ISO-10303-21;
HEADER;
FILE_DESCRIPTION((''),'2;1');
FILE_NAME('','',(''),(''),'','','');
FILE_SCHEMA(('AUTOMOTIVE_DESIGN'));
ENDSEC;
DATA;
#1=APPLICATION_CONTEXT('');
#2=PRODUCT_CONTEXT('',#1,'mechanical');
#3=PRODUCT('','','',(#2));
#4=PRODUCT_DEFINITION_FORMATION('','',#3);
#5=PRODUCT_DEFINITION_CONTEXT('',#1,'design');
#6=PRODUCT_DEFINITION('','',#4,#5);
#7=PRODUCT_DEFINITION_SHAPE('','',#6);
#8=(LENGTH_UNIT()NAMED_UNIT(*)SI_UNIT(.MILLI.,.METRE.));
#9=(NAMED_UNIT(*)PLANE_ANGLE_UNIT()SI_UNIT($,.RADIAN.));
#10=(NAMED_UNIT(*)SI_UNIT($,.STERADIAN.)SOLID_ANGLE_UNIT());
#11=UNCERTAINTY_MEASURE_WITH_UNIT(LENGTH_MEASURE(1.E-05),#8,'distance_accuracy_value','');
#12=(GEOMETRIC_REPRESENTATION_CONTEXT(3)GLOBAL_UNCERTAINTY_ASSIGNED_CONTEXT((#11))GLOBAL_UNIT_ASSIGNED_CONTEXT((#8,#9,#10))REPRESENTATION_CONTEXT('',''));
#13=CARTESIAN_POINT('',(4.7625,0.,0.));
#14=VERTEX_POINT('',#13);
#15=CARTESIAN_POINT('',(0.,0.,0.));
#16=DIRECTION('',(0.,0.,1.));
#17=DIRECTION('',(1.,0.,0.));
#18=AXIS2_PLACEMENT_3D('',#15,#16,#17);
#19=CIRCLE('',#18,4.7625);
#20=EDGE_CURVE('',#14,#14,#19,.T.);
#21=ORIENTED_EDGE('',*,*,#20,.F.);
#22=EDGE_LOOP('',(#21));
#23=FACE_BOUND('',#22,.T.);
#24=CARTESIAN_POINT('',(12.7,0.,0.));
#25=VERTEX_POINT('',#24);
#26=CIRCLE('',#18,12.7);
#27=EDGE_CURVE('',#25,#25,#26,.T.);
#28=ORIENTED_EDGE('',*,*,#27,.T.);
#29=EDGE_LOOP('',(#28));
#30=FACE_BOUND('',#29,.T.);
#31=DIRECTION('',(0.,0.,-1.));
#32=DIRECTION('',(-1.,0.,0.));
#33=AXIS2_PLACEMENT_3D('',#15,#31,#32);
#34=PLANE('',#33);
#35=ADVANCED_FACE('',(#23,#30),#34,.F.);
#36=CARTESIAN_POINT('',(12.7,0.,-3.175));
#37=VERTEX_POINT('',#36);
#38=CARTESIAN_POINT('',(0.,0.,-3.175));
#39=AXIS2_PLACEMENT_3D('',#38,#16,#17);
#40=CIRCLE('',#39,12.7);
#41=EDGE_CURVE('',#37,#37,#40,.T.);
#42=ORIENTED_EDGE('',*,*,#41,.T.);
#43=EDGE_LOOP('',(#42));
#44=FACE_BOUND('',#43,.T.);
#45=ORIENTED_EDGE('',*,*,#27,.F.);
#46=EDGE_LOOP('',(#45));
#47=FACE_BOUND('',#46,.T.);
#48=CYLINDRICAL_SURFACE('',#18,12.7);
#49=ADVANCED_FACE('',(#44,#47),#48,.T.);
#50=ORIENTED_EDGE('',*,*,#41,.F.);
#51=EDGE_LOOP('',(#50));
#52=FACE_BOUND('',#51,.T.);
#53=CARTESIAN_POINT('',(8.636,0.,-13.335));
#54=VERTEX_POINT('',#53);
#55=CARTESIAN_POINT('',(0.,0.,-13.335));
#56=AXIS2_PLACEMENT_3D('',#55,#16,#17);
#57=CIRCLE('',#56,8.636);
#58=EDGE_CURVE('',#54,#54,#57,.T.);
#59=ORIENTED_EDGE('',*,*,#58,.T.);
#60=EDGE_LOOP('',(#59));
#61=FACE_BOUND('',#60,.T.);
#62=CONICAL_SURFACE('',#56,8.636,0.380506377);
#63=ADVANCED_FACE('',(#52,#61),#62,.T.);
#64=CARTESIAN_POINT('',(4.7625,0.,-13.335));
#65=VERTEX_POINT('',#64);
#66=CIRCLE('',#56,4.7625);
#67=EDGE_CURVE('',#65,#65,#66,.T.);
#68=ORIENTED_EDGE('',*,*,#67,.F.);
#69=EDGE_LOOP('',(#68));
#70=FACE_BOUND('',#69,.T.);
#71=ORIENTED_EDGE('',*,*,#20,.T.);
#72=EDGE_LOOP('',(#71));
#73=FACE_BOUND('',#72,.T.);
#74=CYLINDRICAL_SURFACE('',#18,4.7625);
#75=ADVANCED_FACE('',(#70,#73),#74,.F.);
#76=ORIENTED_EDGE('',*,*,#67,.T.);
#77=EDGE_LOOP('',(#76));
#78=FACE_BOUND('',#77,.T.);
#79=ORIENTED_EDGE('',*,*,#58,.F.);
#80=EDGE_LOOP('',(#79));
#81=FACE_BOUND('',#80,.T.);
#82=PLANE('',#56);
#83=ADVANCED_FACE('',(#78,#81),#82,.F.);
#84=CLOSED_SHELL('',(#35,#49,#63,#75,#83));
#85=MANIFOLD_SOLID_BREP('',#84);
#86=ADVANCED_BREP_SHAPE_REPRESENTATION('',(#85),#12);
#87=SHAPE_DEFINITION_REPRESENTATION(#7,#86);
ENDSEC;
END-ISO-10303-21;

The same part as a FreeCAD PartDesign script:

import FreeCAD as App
import Part
import Sketcher
Q = App.Units.Quantity


def add_polygon(sketch, points):
    """Adds a closed chain of lines whose ends are joined by coincident constraints."""
    first, n = sketch.GeometryCount, len(points)
    for a, b in zip(points, points[1:] + points[:1]):
        sketch.addGeometry(Part.LineSegment(App.Vector(*a, 0), App.Vector(*b, 0)), False)
    for i in range(n):
        sketch.addConstraint(Sketcher.Constraint("Coincident", first + i, 2, first + (i + 1) % n, 1))

doc = App.newDocument("Part")
body = doc.addObject("PartDesign::Body", "Body")

# Sketch on XZ plane
sketch1 = doc.addObject("Sketcher::SketchObject", "Sketch")
body.addObject(sketch1)
sketch1.AttachmentSupport = (doc.XZ_Plane, [""])
sketch1.MapMode = "FlatFace"
add_polygon(sketch1, [(4.8, 0), (12.7, 0), (12.7, -3.2), (8.6, -13.3), (4.8, -13.3)])  # lines 0-4
sketch1.addConstraint(Sketcher.Constraint("Horizontal", 0))
sketch1.addConstraint(Sketcher.Constraint("Vertical", 1))
sketch1.addConstraint(Sketcher.Constraint("Horizontal", 3))
sketch1.addConstraint(Sketcher.Constraint("Vertical", 4))
sketch1.addConstraint(Sketcher.Constraint("PointOnObject", 0, 2, -1))
sketch1.addConstraint(Sketcher.Constraint("DistanceX", -1, 1, 0, 2, Q("0.5 in")))
sketch1.addConstraint(Sketcher.Constraint("DistanceY", 2, 2, 1, 2, Q("0.4 in")))
sketch1.addConstraint(Sketcher.Constraint("DistanceX", 0, 1, 0, 2, Q("0.3125 in")))
sketch1.addConstraint(Sketcher.Constraint("DistanceY", 1, 2, 1, 1, Q("0.125 in")))
sketch1.addConstraint(Sketcher.Constraint("DistanceX", -1, 1, 2, 2, Q("0.34 in")))
revolution = doc.addObject("PartDesign::Revolution", "Revolution")
body.addObject(revolution)
revolution.Profile = sketch1
revolution.ReferenceAxis = (sketch1, ["V_Axis"])
revolution.Angle = 360

doc.recompute()
